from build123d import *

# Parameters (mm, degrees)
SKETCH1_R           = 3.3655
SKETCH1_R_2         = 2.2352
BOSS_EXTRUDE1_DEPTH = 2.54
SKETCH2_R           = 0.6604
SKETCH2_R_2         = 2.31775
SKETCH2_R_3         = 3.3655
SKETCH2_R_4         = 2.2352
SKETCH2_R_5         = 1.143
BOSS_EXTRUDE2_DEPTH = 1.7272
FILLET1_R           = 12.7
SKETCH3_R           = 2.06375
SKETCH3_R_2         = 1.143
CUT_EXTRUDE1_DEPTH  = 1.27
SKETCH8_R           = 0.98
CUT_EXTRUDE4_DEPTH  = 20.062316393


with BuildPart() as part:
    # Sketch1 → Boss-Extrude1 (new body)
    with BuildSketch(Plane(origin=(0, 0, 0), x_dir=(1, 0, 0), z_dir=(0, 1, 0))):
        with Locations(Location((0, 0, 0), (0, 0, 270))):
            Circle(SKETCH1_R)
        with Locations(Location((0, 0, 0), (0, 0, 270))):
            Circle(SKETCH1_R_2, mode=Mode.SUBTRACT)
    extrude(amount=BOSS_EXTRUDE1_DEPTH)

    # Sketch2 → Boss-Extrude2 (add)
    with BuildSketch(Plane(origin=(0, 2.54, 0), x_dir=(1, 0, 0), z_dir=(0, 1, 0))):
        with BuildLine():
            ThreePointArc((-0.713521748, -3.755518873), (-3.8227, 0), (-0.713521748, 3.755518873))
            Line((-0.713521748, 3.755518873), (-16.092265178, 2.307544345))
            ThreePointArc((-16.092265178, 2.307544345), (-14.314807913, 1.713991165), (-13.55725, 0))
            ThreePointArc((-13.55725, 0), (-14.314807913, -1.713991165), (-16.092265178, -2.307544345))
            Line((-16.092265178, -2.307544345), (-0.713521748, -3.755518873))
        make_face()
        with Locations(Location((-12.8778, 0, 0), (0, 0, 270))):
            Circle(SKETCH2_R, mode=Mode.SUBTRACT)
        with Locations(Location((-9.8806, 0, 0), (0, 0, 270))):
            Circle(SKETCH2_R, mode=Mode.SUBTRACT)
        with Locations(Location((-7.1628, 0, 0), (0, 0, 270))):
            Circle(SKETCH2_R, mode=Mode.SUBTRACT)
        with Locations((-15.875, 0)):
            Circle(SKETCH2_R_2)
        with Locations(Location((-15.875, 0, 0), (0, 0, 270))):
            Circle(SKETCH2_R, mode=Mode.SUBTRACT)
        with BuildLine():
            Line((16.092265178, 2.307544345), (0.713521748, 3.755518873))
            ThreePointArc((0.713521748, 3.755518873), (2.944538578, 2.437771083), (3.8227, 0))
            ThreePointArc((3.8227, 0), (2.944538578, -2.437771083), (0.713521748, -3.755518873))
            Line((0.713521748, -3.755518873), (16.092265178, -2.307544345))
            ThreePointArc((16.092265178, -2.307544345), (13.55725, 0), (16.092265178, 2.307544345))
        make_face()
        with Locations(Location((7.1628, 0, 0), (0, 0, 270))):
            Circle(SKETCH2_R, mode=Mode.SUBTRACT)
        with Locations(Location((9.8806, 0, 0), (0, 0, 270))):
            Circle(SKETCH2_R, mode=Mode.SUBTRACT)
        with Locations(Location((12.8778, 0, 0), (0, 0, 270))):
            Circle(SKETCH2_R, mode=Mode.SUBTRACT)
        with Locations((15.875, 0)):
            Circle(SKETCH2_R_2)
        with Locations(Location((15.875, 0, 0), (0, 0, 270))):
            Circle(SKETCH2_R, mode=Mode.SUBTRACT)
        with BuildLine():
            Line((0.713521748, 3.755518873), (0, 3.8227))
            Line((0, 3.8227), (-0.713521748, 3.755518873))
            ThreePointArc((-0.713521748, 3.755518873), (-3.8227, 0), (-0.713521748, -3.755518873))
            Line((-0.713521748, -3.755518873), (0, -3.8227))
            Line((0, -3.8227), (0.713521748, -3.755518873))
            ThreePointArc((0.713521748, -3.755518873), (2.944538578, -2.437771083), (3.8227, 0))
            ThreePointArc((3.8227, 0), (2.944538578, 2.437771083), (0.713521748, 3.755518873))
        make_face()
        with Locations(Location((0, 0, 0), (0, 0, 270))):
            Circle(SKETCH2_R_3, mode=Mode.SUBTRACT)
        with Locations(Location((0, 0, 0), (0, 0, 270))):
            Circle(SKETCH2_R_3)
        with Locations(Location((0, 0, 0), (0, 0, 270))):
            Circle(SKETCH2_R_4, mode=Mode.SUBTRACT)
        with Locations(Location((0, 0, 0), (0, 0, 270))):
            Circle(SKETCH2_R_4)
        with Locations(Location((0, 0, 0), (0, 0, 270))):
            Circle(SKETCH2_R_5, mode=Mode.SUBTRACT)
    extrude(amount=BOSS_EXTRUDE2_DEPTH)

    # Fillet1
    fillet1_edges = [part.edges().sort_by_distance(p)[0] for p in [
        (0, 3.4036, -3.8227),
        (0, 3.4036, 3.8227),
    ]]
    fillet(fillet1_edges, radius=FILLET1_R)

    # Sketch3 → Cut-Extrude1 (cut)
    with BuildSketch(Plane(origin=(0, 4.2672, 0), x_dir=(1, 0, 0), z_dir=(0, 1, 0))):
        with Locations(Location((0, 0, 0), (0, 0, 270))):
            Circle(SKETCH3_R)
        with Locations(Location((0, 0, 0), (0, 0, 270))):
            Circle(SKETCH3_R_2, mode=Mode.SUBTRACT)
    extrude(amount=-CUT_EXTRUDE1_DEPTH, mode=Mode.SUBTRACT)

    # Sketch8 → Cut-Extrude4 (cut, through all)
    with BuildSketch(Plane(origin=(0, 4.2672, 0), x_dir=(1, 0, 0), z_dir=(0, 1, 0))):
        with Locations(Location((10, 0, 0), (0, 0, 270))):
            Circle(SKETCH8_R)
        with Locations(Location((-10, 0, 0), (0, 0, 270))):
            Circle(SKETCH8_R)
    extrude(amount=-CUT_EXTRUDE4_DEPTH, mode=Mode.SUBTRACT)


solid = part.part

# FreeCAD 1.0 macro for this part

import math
import FreeCAD as App
import Part
import Sketcher

V = App.Vector
Q = App.Units.Quantity


def edges_at(feature, points):
    """Names of the edges that pass closest to the given points."""
    edges = feature.Shape.Edges
    near = lambda p: min(range(len(edges)), key=lambda i: edges[i].distToShape(Part.Vertex(*p))[0])
    return sorted({f"Edge{near(p) + 1}" for p in points})

doc = App.newDocument("Part")
body = doc.addObject("PartDesign::Body", "Body")

sketch1 = body.newObject("Sketcher::SketchObject", "Sketch")
sketch1.AttachmentSupport = (doc.getObject("XZ_Plane"), [""])
sketch1.MapMode = "FlatFace"
sketch1.addGeometry([
    Part.Circle(V(0, 0, 0), V(0, 0, 1), 3.4),
    Part.Circle(V(0, 0, 0), V(0, 0, 1), 2.2),
], False)
sketch1.addConstraint([
    Sketcher.Constraint("Coincident", 0, 3, -1, 1),
    Sketcher.Constraint("Coincident", 1, 3, -1, 1),
    Sketcher.Constraint("Diameter", 0, Q("0.265 in")),
    Sketcher.Constraint("Diameter", 1, Q("0.176 in")),
])
pad1 = body.newObject("PartDesign::Pad", "Pad")
pad1.Profile = sketch1
pad1.Length = Q("0.1 in")
pad1.Reversed = True

sketch2 = body.newObject("Sketcher::SketchObject", "Sketch001")
sketch2.AttachmentSupport = (doc.getObject("XZ_Plane"), [""])
sketch2.MapMode = "FlatFace"
sketch2.AttachmentOffset = App.Placement(V(0, 0, -0.1 * 25.4), App.Rotation())
sketch2.addGeometry([
    Part.LineSegment(V(-16.1, 2.3, 0), V(-0.7, 3.8, 0)),
    Part.LineSegment(V(-0.7, 3.8, 0), V(0, 3.8, 0)),
    Part.LineSegment(V(0, 3.8, 0), V(0.7, 3.8, 0)),
    Part.LineSegment(V(0.7, 3.8, 0), V(16.1, 2.3, 0)),
    Part.ArcOfCircle(Part.Circle(V(15.9, 0, 0), V(0, 0, 1), 2.3), math.radians(-85), math.radians(85)),
    Part.LineSegment(V(16.1, -2.3, 0), V(0.7, -3.8, 0)),
    Part.LineSegment(V(0.7, -3.8, 0), V(0, -3.8, 0)),
    Part.LineSegment(V(0, -3.8, 0), V(-0.7, -3.8, 0)),
    Part.LineSegment(V(-0.7, -3.8, 0), V(-16.1, -2.3, 0)),
    Part.ArcOfCircle(Part.Circle(V(-15.9, 0, 0), V(0, 0, 1), 2.3), math.radians(95), math.radians(265)),
    Part.Circle(V(-15.9, 0, 0), V(0, 0, 1), 0.7),
    Part.Circle(V(-12.9, 0, 0), V(0, 0, 1), 0.7),
    Part.Circle(V(-9.9, 0, 0), V(0, 0, 1), 0.7),
    Part.Circle(V(-7.2, 0, 0), V(0, 0, 1), 0.7),
    Part.Circle(V(0, 0, 0), V(0, 0, 1), 1.1),
    Part.Circle(V(7.2, 0, 0), V(0, 0, 1), 0.7),
    Part.Circle(V(9.9, 0, 0), V(0, 0, 1), 0.7),
    Part.Circle(V(12.9, 0, 0), V(0, 0, 1), 0.7),
    Part.Circle(V(15.9, 0, 0), V(0, 0, 1), 0.7),
], False)
sketch2.addConstraint([
    Sketcher.Constraint("Coincident", 0, 2, 1, 1),
    Sketcher.Constraint("Coincident", 1, 2, 2, 1),
    Sketcher.Constraint("Coincident", 2, 2, 3, 1),
    Sketcher.Constraint("Tangent", 3, 2, 4, 2),
    Sketcher.Constraint("Tangent", 4, 1, 5, 1),
    Sketcher.Constraint("Coincident", 5, 2, 6, 1),
    Sketcher.Constraint("Coincident", 6, 2, 7, 1),
    Sketcher.Constraint("Coincident", 7, 2, 8, 1),
    Sketcher.Constraint("Tangent", 8, 2, 9, 2),
    Sketcher.Constraint("Tangent", 9, 1, 0, 1),
    Sketcher.Constraint("Coincident", 14, 3, -1, 1),
    Sketcher.Constraint("Coincident", 10, 3, 9, 3),
    Sketcher.Constraint("Coincident", 18, 3, 4, 3),
    Sketcher.Constraint("Equal", 4, 9),
    Sketcher.Constraint("Equal", 10, 11),
    Sketcher.Constraint("Equal", 11, 12),
    Sketcher.Constraint("Equal", 12, 13),
    Sketcher.Constraint("Equal", 13, 15),
    Sketcher.Constraint("Equal", 15, 16),
    Sketcher.Constraint("Equal", 16, 17),
    Sketcher.Constraint("Equal", 17, 18),
    Sketcher.Constraint("Symmetric", 4, 3, 9, 3, -1, 1),
    Sketcher.Constraint("Symmetric", 13, 3, 15, 3, -1, 1),
    Sketcher.Constraint("Symmetric", 12, 3, 16, 3, -1, 1),
    Sketcher.Constraint("Symmetric", 11, 3, 17, 3, -1, 1),
    Sketcher.Constraint("Symmetric", 0, 2, 5, 2, -1, 1),
    Sketcher.Constraint("Symmetric", 1, 2, 6, 2, -1, 1),
    Sketcher.Constraint("Symmetric", 2, 2, 7, 2, -1, 1),
    Sketcher.Constraint("Symmetric", 0, 2, 2, 2, -2),
    Sketcher.Constraint("PointOnObject", 4, 3, -1),
    Sketcher.Constraint("PointOnObject", 11, 3, -1),
    Sketcher.Constraint("PointOnObject", 12, 3, -1),
    Sketcher.Constraint("PointOnObject", 13, 3, -1),
    Sketcher.Constraint("PointOnObject", 1, 2, -2),
    Sketcher.Constraint("Parallel", 0, 1),
    Sketcher.Constraint("Diameter", 14, Q("0.09 in")),
    Sketcher.Constraint("Diameter", 10, Q("0.052 in")),
    Sketcher.Constraint("DistanceX", 9, 3, 4, 3, Q("1.25 in")),
    Sketcher.Constraint("DistanceX", 11, 3, -1, 1, Q("0.507 in")),
    Sketcher.Constraint("DistanceX", 12, 3, -1, 1, Q("0.389 in")),
    Sketcher.Constraint("DistanceX", 13, 3, -1, 1, Q("0.282 in")),
    Sketcher.Constraint("Radius", 4, Q("2.31775 mm")),
    Sketcher.Constraint("DistanceY", 6, 2, 1, 2, Q("0.301 in")),
    Sketcher.Constraint("Distance", 0, Q("15.44676 mm")),
])
pad2 = body.newObject("PartDesign::Pad", "Pad001")
pad2.Profile = sketch2
pad2.Length = Q("0.068 in")
pad2.Reversed = True
doc.recompute()

fillet = body.newObject("PartDesign::Fillet", "Fillet")
fillet.Base = (pad2, edges_at(pad2, [(0, 3.404, -3.823), (0, 3.404, 3.823)]))
fillet.Radius = Q("0.5 in")

sketch3 = body.newObject("Sketcher::SketchObject", "Sketch002")
sketch3.AttachmentSupport = (doc.getObject("XZ_Plane"), [""])
sketch3.MapMode = "FlatFace"
sketch3.AttachmentOffset = App.Placement(V(0, 0, -0.168 * 25.4), App.Rotation())
sketch3.addGeometry([
    Part.Circle(V(0, 0, 0), V(0, 0, 1), 2.1),
    Part.Circle(V(0, 0, 0), V(0, 0, 1), 1.1),
], False)
sketch3.addConstraint([
    Sketcher.Constraint("Coincident", 0, 3, -1, 1),
    Sketcher.Constraint("Coincident", 1, 3, -1, 1),
    Sketcher.Constraint("Diameter", 1, Q("0.09 in")),
    Sketcher.Constraint("Diameter", 0, Q("0.1625 in")),
])
pocket1 = body.newObject("PartDesign::Pocket", "Pocket")
pocket1.Profile = sketch3
pocket1.Length = Q("0.05 in")
pocket1.Reversed = True

sketch4 = body.newObject("Sketcher::SketchObject", "Sketch003")
sketch4.AttachmentSupport = (doc.getObject("XZ_Plane"), [""])
sketch4.MapMode = "FlatFace"
sketch4.AttachmentOffset = App.Placement(V(0, 0, -0.168 * 25.4), App.Rotation())
sketch4.addGeometry([
    Part.Circle(V(10, 0, 0), V(0, 0, 1), 1),
    Part.Circle(V(-10, 0, 0), V(0, 0, 1), 1),
], False)
sketch4.addConstraint([
    Sketcher.Constraint("Equal", 0, 1),
    Sketcher.Constraint("Symmetric", 0, 3, 1, 3, -1, 1),
    Sketcher.Constraint("PointOnObject", 0, 3, -1),
    Sketcher.Constraint("Diameter", 0, Q("1.96 mm")),
    Sketcher.Constraint("DistanceX", -1, 1, 0, 3, Q("10 mm")),
])
pocket2 = body.newObject("PartDesign::Pocket", "Pocket001")
pocket2.Profile = sketch4
pocket2.Type = "ThroughAll"
pocket2.Reversed = True

doc.recompute()
